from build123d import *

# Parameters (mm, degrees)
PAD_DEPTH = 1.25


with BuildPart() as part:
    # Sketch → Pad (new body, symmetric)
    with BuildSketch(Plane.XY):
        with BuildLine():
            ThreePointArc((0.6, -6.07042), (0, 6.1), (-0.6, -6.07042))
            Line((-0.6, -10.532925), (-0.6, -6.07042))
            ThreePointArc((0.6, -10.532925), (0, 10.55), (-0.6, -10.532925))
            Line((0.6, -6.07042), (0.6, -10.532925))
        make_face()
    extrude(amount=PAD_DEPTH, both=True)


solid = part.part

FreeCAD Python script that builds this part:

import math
import FreeCAD as App
import Part
import Sketcher

V = App.Vector

doc = App.newDocument("Part")
params = doc.addObject("Spreadsheet::Sheet", "Params")
for row, (alias, value) in enumerate([
    ("sketch1_radius", "6.1 mm"),
    ("sketch1_radius2", "10.55 mm"),
    ("pad1_length", "2.5 mm"),
], start=1):
    params.set(f"A{row}", alias)
    params.set(f"B{row}", "=" + value)
    params.setAlias(f"B{row}", alias)

body = doc.addObject("PartDesign::Body", "Body")

# Sketch on XY plane
sketch1 = body.newObject("Sketcher::SketchObject", "Sketch")
sketch1.AttachmentSupport = (doc.getObject("XY_Plane"), [""])
sketch1.MapMode = "FlatFace"
sketch1.addGeometry([
    Part.ArcOfCircle(Part.Circle(V(0, 0, 0), V(0, 0, 1), 6.1), math.radians(-84.355222), math.radians(264.355222)),
    Part.LineSegment(V(0.6, -6.07042, 0), V(0.6, -10.532925, 0)),
    Part.ArcOfCircle(Part.Circle(V(0, 0, 0), V(0, 0, 1), 10.55), math.radians(-86.739713), math.radians(266.739713)),
    Part.LineSegment(V(-0.6, -10.532925, 0), V(-0.6, -6.07042, 0)),
], False)
sketch1.addConstraint([
    Sketcher.Constraint("Coincident", 0, 1, 1, 1),
    Sketcher.Constraint("Coincident", 1, 2, 2, 1),
    Sketcher.Constraint("Coincident", 2, 2, 3, 1),
    Sketcher.Constraint("Coincident", 3, 2, 0, 2),
    Sketcher.Constraint("Vertical", 1),
    Sketcher.Constraint("Vertical", 3),
    Sketcher.Constraint("Coincident", 0, 3, -1, 1),
    Sketcher.Constraint("Coincident", 2, 3, -1, 1),
    Sketcher.Constraint("Horizontal", 1, 2, 2, 2),
    Sketcher.Constraint("Radius", 0, 6.1),
    Sketcher.Constraint("Radius", 2, 10.55),
    Sketcher.Constraint("DistanceX", -1, 1, 0, 1, 0.6),
])
sketch1.setExpression("Constraints[9]", "Params.sketch1_radius")
sketch1.setExpression("Constraints[10]", "Params.sketch1_radius2")
pad1 = body.newObject("PartDesign::Pad", "Pad")
pad1.Profile = sketch1
pad1.setExpression("Length", "Params.pad1_length")
pad1.Midplane = True

doc.recompute()
